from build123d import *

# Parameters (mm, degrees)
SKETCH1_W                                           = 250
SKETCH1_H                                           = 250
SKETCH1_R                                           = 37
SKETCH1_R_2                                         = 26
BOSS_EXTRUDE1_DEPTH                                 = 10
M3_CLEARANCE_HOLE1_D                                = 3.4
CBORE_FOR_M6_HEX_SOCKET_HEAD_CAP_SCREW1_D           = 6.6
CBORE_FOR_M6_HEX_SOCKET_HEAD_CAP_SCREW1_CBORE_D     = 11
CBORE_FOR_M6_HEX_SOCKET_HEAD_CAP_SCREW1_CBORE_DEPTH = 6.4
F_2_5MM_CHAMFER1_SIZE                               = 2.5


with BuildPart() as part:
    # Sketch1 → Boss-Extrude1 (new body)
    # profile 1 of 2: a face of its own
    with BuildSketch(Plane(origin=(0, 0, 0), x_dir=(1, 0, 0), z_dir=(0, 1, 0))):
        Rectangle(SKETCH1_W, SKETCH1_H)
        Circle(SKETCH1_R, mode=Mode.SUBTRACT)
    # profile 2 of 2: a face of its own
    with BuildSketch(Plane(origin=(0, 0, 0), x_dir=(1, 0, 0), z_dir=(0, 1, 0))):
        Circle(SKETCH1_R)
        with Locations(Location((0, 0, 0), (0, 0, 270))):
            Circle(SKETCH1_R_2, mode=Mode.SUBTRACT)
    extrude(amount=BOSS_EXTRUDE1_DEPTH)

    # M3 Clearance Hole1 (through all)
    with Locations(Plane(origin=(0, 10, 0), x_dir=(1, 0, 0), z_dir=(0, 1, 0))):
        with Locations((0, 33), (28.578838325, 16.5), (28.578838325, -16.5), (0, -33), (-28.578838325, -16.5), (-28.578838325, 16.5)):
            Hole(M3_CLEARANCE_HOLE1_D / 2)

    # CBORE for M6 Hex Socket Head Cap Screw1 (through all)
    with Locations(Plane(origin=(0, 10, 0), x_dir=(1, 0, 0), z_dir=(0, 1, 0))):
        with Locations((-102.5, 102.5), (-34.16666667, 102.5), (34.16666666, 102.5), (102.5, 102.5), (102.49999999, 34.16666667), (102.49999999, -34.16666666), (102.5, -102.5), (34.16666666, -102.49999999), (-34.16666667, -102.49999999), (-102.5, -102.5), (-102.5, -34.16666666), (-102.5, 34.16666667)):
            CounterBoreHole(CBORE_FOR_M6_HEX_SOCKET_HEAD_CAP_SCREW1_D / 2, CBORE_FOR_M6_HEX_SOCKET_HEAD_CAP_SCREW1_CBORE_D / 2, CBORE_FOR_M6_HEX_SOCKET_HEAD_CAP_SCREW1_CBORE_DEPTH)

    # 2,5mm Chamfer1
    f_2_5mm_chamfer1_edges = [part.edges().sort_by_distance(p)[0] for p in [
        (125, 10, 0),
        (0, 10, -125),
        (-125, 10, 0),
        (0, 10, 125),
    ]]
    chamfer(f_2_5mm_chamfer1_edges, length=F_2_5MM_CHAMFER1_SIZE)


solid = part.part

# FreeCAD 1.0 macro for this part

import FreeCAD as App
import Part
import Sketcher


def edges_at(feature, points):
    """Names of the edges that pass closest to the given points."""
    edges = feature.Shape.Edges
    near = lambda p: min(range(len(edges)), key=lambda i: edges[i].distToShape(Part.Vertex(*p))[0])
    return sorted({f"Edge{near(p) + 1}" for p in points})

doc = App.newDocument("Part")
body = doc.addObject("PartDesign::Body", "Body")

sketch1 = body.newObject("Sketcher::SketchObject", "Sketch")
sketch1.AttachmentSupport = (doc.getObject("XZ_Plane"), [""])
sketch1.MapMode = "FlatFace"
sketch1.addGeometry(Part.LineSegment(App.Vector(-125, -125, 0), App.Vector(-125, 125, 0)), False)
sketch1.addGeometry(Part.LineSegment(App.Vector(-125, 125, 0), App.Vector(125, 125, 0)), False)
sketch1.addGeometry(Part.LineSegment(App.Vector(125, 125, 0), App.Vector(125, -125, 0)), False)
sketch1.addGeometry(Part.LineSegment(App.Vector(125, -125, 0), App.Vector(-125, -125, 0)), False)
sketch1.addGeometry(Part.Circle(App.Vector(0, 0, 0), App.Vector(0, 0, 1), 26), False)
sketch1.addConstraint(Sketcher.Constraint("Coincident", 0, 2, 1, 1))
sketch1.addConstraint(Sketcher.Constraint("Coincident", 1, 2, 2, 1))
sketch1.addConstraint(Sketcher.Constraint("Coincident", 2, 2, 3, 1))
sketch1.addConstraint(Sketcher.Constraint("Coincident", 3, 2, 0, 1))
sketch1.addConstraint(Sketcher.Constraint("Vertical", 0))
sketch1.addConstraint(Sketcher.Constraint("Horizontal", 1))
sketch1.addConstraint(Sketcher.Constraint("Vertical", 2))
sketch1.addConstraint(Sketcher.Constraint("Horizontal", 3))
sketch1.addConstraint(Sketcher.Constraint("Coincident", 4, 3, -1, 1))
sketch1.addConstraint(Sketcher.Constraint("Symmetric", 0, 2, 2, 2, -1, 1))
sketch1.addConstraint(Sketcher.Constraint("Equal", 3, 0))
sketch1.addConstraint(Sketcher.Constraint("Diameter", 4, 52.0))
sketch1.addConstraint(Sketcher.Constraint("DistanceX", 1, 1, 1, 2, 250.0))
pad1 = body.newObject("PartDesign::Pad", "Pad")
pad1.Profile = sketch1
pad1.Length = 10
pad1.Reversed = True

sketch2 = body.newObject("Sketcher::SketchObject", "Sketch001")
sketch2.AttachmentSupport = (doc.getObject("XZ_Plane"), [""])
sketch2.MapMode = "FlatFace"
sketch2.AttachmentOffset = App.Placement(App.Vector(0, 0, -10), App.Rotation())
sketch2.addGeometry(Part.Circle(App.Vector(0, -33, 0), App.Vector(0, 0, 1), 1.7), False)
sketch2.addGeometry(Part.Circle(App.Vector(28.6, -16.5, 0), App.Vector(0, 0, 1), 1.7), False)
sketch2.addGeometry(Part.Circle(App.Vector(28.6, 16.5, 0), App.Vector(0, 0, 1), 1.7), False)
sketch2.addGeometry(Part.Circle(App.Vector(0, 33, 0), App.Vector(0, 0, 1), 1.7), False)
sketch2.addGeometry(Part.Circle(App.Vector(-28.6, 16.5, 0), App.Vector(0, 0, 1), 1.7), False)
sketch2.addGeometry(Part.Circle(App.Vector(-28.6, -16.5, 0), App.Vector(0, 0, 1), 1.7), False)
sketch2.addConstraint(Sketcher.Constraint("Equal", 0, 1))
sketch2.addConstraint(Sketcher.Constraint("Equal", 1, 2))
sketch2.addConstraint(Sketcher.Constraint("Equal", 2, 3))
sketch2.addConstraint(Sketcher.Constraint("Equal", 3, 4))
sketch2.addConstraint(Sketcher.Constraint("Equal", 4, 5))
sketch2.addConstraint(Sketcher.Constraint("Symmetric", 0, 3, 3, 3, -1, 1))
sketch2.addConstraint(Sketcher.Constraint("Symmetric", 1, 3, 4, 3, -1, 1))
sketch2.addConstraint(Sketcher.Constraint("Symmetric", 2, 3, 5, 3, -1, 1))
sketch2.addConstraint(Sketcher.Constraint("Symmetric", 2, 3, 4, 3, -2))
sketch2.addConstraint(Sketcher.Constraint("PointOnObject", 0, 3, -2))
sketch2.addConstraint(Sketcher.Constraint("Diameter", 0, 3.4))
sketch2.addConstraint(Sketcher.Constraint("DistanceY", 0, 3, -1, 1, 33.0))
sketch2.addConstraint(Sketcher.Constraint("DistanceY", 1, 3, 2, 3, 33.0))
sketch2.addConstraint(Sketcher.Constraint("DistanceX", -1, 1, 1, 3, 28.578838))
doc.recompute()
hole = body.newObject("PartDesign::Hole", "Hole")
hole.Profile = sketch2
hole.ThreadType = "None"
hole.Diameter = 3.4
hole.DepthType = "ThroughAll"
hole.Reversed = True

sketch3 = body.newObject("Sketcher::SketchObject", "Sketch002")
sketch3.AttachmentSupport = (doc.getObject("XZ_Plane"), [""])
sketch3.MapMode = "FlatFace"
sketch3.AttachmentOffset = App.Placement(App.Vector(0, 0, -10), App.Rotation())
sketch3.addGeometry(Part.Circle(App.Vector(-102.5, -102.5, 0), App.Vector(0, 0, 1), 3.3), False)
sketch3.addGeometry(Part.Circle(App.Vector(-34.2, -102.5, 0), App.Vector(0, 0, 1), 3.3), False)
sketch3.addGeometry(Part.Circle(App.Vector(34.2, -102.5, 0), App.Vector(0, 0, 1), 3.3), False)
sketch3.addGeometry(Part.Circle(App.Vector(102.5, -102.5, 0), App.Vector(0, 0, 1), 3.3), False)
sketch3.addGeometry(Part.Circle(App.Vector(102.5, -34.2, 0), App.Vector(0, 0, 1), 3.3), False)
sketch3.addGeometry(Part.Circle(App.Vector(102.5, 34.2, 0), App.Vector(0, 0, 1), 3.3), False)
sketch3.addGeometry(Part.Circle(App.Vector(102.5, 102.5, 0), App.Vector(0, 0, 1), 3.3), False)
sketch3.addGeometry(Part.Circle(App.Vector(34.2, 102.5, 0), App.Vector(0, 0, 1), 3.3), False)
sketch3.addGeometry(Part.Circle(App.Vector(-34.2, 102.5, 0), App.Vector(0, 0, 1), 3.3), False)
sketch3.addGeometry(Part.Circle(App.Vector(-102.5, 102.5, 0), App.Vector(0, 0, 1), 3.3), False)
sketch3.addGeometry(Part.Circle(App.Vector(-102.5, 34.2, 0), App.Vector(0, 0, 1), 3.3), False)
sketch3.addGeometry(Part.Circle(App.Vector(-102.5, -34.2, 0), App.Vector(0, 0, 1), 3.3), False)
sketch3.addConstraint(Sketcher.Constraint("Equal", 0, 1))
sketch3.addConstraint(Sketcher.Constraint("Equal", 1, 2))
sketch3.addConstraint(Sketcher.Constraint("Equal", 2, 3))
sketch3.addConstraint(Sketcher.Constraint("Equal", 3, 4))
sketch3.addConstraint(Sketcher.Constraint("Equal", 4, 5))
sketch3.addConstraint(Sketcher.Constraint("Equal", 5, 6))
sketch3.addConstraint(Sketcher.Constraint("Equal", 6, 7))
sketch3.addConstraint(Sketcher.Constraint("Equal", 7, 8))
sketch3.addConstraint(Sketcher.Constraint("Equal", 8, 9))
sketch3.addConstraint(Sketcher.Constraint("Equal", 9, 10))
sketch3.addConstraint(Sketcher.Constraint("Equal", 10, 11))
sketch3.addConstraint(Sketcher.Constraint("Symmetric", 0, 3, 6, 3, -1, 1))
sketch3.addConstraint(Sketcher.Constraint("Symmetric", 1, 3, 7, 3, -1, 1))
sketch3.addConstraint(Sketcher.Constraint("Symmetric", 2, 3, 8, 3, -1, 1))
sketch3.addConstraint(Sketcher.Constraint("Symmetric", 3, 3, 9, 3, -1, 1))
sketch3.addConstraint(Sketcher.Constraint("Symmetric", 4, 3, 10, 3, -1, 1))
sketch3.addConstraint(Sketcher.Constraint("Symmetric", 5, 3, 11, 3, -1, 1))
sketch3.addConstraint(Sketcher.Constraint("Symmetric", 1, 3, 2, 3, -2))
sketch3.addConstraint(Sketcher.Constraint("Symmetric", 0, 3, 3, 3, -2))
sketch3.addConstraint(Sketcher.Constraint("Symmetric", 5, 3, 10, 3, -2))
sketch3.addConstraint(Sketcher.Constraint("Horizontal", 0, 3, 1, 3))
sketch3.addConstraint(Sketcher.Constraint("Vertical", 3, 3, 4, 3))
sketch3.addConstraint(Sketcher.Constraint("Diameter", 0, 6.6))
sketch3.addConstraint(Sketcher.Constraint("DistanceX", 0, 3, 3, 3, 205.0))
sketch3.addConstraint(Sketcher.Constraint("DistanceY", 3, 3, 6, 3, 205.0))
sketch3.addConstraint(Sketcher.Constraint("DistanceX", 1, 3, -1, 1, 34.166667))
sketch3.addConstraint(Sketcher.Constraint("DistanceY", 4, 3, -1, 1, 34.166667))
doc.recompute()
hole2 = body.newObject("PartDesign::Hole", "Hole001")
hole2.Profile = sketch3
hole2.ThreadType = "None"
hole2.Diameter = 6.6
hole2.DepthType = "ThroughAll"
hole2.HoleCutType = "Counterbore"
hole2.HoleCutDiameter = 11
hole2.HoleCutDepth = 6.4
hole2.Reversed = True
doc.recompute()

chamfer = body.newObject("PartDesign::Chamfer", "Chamfer")
chamfer.Base = (hole2, edges_at(hole2, [
    (125, 10, 0),
    (0, 10, -125),
    (-125, 10, 0),
    (0, 10, 125),
]))
chamfer.Size = 2.5

doc.recompute()
